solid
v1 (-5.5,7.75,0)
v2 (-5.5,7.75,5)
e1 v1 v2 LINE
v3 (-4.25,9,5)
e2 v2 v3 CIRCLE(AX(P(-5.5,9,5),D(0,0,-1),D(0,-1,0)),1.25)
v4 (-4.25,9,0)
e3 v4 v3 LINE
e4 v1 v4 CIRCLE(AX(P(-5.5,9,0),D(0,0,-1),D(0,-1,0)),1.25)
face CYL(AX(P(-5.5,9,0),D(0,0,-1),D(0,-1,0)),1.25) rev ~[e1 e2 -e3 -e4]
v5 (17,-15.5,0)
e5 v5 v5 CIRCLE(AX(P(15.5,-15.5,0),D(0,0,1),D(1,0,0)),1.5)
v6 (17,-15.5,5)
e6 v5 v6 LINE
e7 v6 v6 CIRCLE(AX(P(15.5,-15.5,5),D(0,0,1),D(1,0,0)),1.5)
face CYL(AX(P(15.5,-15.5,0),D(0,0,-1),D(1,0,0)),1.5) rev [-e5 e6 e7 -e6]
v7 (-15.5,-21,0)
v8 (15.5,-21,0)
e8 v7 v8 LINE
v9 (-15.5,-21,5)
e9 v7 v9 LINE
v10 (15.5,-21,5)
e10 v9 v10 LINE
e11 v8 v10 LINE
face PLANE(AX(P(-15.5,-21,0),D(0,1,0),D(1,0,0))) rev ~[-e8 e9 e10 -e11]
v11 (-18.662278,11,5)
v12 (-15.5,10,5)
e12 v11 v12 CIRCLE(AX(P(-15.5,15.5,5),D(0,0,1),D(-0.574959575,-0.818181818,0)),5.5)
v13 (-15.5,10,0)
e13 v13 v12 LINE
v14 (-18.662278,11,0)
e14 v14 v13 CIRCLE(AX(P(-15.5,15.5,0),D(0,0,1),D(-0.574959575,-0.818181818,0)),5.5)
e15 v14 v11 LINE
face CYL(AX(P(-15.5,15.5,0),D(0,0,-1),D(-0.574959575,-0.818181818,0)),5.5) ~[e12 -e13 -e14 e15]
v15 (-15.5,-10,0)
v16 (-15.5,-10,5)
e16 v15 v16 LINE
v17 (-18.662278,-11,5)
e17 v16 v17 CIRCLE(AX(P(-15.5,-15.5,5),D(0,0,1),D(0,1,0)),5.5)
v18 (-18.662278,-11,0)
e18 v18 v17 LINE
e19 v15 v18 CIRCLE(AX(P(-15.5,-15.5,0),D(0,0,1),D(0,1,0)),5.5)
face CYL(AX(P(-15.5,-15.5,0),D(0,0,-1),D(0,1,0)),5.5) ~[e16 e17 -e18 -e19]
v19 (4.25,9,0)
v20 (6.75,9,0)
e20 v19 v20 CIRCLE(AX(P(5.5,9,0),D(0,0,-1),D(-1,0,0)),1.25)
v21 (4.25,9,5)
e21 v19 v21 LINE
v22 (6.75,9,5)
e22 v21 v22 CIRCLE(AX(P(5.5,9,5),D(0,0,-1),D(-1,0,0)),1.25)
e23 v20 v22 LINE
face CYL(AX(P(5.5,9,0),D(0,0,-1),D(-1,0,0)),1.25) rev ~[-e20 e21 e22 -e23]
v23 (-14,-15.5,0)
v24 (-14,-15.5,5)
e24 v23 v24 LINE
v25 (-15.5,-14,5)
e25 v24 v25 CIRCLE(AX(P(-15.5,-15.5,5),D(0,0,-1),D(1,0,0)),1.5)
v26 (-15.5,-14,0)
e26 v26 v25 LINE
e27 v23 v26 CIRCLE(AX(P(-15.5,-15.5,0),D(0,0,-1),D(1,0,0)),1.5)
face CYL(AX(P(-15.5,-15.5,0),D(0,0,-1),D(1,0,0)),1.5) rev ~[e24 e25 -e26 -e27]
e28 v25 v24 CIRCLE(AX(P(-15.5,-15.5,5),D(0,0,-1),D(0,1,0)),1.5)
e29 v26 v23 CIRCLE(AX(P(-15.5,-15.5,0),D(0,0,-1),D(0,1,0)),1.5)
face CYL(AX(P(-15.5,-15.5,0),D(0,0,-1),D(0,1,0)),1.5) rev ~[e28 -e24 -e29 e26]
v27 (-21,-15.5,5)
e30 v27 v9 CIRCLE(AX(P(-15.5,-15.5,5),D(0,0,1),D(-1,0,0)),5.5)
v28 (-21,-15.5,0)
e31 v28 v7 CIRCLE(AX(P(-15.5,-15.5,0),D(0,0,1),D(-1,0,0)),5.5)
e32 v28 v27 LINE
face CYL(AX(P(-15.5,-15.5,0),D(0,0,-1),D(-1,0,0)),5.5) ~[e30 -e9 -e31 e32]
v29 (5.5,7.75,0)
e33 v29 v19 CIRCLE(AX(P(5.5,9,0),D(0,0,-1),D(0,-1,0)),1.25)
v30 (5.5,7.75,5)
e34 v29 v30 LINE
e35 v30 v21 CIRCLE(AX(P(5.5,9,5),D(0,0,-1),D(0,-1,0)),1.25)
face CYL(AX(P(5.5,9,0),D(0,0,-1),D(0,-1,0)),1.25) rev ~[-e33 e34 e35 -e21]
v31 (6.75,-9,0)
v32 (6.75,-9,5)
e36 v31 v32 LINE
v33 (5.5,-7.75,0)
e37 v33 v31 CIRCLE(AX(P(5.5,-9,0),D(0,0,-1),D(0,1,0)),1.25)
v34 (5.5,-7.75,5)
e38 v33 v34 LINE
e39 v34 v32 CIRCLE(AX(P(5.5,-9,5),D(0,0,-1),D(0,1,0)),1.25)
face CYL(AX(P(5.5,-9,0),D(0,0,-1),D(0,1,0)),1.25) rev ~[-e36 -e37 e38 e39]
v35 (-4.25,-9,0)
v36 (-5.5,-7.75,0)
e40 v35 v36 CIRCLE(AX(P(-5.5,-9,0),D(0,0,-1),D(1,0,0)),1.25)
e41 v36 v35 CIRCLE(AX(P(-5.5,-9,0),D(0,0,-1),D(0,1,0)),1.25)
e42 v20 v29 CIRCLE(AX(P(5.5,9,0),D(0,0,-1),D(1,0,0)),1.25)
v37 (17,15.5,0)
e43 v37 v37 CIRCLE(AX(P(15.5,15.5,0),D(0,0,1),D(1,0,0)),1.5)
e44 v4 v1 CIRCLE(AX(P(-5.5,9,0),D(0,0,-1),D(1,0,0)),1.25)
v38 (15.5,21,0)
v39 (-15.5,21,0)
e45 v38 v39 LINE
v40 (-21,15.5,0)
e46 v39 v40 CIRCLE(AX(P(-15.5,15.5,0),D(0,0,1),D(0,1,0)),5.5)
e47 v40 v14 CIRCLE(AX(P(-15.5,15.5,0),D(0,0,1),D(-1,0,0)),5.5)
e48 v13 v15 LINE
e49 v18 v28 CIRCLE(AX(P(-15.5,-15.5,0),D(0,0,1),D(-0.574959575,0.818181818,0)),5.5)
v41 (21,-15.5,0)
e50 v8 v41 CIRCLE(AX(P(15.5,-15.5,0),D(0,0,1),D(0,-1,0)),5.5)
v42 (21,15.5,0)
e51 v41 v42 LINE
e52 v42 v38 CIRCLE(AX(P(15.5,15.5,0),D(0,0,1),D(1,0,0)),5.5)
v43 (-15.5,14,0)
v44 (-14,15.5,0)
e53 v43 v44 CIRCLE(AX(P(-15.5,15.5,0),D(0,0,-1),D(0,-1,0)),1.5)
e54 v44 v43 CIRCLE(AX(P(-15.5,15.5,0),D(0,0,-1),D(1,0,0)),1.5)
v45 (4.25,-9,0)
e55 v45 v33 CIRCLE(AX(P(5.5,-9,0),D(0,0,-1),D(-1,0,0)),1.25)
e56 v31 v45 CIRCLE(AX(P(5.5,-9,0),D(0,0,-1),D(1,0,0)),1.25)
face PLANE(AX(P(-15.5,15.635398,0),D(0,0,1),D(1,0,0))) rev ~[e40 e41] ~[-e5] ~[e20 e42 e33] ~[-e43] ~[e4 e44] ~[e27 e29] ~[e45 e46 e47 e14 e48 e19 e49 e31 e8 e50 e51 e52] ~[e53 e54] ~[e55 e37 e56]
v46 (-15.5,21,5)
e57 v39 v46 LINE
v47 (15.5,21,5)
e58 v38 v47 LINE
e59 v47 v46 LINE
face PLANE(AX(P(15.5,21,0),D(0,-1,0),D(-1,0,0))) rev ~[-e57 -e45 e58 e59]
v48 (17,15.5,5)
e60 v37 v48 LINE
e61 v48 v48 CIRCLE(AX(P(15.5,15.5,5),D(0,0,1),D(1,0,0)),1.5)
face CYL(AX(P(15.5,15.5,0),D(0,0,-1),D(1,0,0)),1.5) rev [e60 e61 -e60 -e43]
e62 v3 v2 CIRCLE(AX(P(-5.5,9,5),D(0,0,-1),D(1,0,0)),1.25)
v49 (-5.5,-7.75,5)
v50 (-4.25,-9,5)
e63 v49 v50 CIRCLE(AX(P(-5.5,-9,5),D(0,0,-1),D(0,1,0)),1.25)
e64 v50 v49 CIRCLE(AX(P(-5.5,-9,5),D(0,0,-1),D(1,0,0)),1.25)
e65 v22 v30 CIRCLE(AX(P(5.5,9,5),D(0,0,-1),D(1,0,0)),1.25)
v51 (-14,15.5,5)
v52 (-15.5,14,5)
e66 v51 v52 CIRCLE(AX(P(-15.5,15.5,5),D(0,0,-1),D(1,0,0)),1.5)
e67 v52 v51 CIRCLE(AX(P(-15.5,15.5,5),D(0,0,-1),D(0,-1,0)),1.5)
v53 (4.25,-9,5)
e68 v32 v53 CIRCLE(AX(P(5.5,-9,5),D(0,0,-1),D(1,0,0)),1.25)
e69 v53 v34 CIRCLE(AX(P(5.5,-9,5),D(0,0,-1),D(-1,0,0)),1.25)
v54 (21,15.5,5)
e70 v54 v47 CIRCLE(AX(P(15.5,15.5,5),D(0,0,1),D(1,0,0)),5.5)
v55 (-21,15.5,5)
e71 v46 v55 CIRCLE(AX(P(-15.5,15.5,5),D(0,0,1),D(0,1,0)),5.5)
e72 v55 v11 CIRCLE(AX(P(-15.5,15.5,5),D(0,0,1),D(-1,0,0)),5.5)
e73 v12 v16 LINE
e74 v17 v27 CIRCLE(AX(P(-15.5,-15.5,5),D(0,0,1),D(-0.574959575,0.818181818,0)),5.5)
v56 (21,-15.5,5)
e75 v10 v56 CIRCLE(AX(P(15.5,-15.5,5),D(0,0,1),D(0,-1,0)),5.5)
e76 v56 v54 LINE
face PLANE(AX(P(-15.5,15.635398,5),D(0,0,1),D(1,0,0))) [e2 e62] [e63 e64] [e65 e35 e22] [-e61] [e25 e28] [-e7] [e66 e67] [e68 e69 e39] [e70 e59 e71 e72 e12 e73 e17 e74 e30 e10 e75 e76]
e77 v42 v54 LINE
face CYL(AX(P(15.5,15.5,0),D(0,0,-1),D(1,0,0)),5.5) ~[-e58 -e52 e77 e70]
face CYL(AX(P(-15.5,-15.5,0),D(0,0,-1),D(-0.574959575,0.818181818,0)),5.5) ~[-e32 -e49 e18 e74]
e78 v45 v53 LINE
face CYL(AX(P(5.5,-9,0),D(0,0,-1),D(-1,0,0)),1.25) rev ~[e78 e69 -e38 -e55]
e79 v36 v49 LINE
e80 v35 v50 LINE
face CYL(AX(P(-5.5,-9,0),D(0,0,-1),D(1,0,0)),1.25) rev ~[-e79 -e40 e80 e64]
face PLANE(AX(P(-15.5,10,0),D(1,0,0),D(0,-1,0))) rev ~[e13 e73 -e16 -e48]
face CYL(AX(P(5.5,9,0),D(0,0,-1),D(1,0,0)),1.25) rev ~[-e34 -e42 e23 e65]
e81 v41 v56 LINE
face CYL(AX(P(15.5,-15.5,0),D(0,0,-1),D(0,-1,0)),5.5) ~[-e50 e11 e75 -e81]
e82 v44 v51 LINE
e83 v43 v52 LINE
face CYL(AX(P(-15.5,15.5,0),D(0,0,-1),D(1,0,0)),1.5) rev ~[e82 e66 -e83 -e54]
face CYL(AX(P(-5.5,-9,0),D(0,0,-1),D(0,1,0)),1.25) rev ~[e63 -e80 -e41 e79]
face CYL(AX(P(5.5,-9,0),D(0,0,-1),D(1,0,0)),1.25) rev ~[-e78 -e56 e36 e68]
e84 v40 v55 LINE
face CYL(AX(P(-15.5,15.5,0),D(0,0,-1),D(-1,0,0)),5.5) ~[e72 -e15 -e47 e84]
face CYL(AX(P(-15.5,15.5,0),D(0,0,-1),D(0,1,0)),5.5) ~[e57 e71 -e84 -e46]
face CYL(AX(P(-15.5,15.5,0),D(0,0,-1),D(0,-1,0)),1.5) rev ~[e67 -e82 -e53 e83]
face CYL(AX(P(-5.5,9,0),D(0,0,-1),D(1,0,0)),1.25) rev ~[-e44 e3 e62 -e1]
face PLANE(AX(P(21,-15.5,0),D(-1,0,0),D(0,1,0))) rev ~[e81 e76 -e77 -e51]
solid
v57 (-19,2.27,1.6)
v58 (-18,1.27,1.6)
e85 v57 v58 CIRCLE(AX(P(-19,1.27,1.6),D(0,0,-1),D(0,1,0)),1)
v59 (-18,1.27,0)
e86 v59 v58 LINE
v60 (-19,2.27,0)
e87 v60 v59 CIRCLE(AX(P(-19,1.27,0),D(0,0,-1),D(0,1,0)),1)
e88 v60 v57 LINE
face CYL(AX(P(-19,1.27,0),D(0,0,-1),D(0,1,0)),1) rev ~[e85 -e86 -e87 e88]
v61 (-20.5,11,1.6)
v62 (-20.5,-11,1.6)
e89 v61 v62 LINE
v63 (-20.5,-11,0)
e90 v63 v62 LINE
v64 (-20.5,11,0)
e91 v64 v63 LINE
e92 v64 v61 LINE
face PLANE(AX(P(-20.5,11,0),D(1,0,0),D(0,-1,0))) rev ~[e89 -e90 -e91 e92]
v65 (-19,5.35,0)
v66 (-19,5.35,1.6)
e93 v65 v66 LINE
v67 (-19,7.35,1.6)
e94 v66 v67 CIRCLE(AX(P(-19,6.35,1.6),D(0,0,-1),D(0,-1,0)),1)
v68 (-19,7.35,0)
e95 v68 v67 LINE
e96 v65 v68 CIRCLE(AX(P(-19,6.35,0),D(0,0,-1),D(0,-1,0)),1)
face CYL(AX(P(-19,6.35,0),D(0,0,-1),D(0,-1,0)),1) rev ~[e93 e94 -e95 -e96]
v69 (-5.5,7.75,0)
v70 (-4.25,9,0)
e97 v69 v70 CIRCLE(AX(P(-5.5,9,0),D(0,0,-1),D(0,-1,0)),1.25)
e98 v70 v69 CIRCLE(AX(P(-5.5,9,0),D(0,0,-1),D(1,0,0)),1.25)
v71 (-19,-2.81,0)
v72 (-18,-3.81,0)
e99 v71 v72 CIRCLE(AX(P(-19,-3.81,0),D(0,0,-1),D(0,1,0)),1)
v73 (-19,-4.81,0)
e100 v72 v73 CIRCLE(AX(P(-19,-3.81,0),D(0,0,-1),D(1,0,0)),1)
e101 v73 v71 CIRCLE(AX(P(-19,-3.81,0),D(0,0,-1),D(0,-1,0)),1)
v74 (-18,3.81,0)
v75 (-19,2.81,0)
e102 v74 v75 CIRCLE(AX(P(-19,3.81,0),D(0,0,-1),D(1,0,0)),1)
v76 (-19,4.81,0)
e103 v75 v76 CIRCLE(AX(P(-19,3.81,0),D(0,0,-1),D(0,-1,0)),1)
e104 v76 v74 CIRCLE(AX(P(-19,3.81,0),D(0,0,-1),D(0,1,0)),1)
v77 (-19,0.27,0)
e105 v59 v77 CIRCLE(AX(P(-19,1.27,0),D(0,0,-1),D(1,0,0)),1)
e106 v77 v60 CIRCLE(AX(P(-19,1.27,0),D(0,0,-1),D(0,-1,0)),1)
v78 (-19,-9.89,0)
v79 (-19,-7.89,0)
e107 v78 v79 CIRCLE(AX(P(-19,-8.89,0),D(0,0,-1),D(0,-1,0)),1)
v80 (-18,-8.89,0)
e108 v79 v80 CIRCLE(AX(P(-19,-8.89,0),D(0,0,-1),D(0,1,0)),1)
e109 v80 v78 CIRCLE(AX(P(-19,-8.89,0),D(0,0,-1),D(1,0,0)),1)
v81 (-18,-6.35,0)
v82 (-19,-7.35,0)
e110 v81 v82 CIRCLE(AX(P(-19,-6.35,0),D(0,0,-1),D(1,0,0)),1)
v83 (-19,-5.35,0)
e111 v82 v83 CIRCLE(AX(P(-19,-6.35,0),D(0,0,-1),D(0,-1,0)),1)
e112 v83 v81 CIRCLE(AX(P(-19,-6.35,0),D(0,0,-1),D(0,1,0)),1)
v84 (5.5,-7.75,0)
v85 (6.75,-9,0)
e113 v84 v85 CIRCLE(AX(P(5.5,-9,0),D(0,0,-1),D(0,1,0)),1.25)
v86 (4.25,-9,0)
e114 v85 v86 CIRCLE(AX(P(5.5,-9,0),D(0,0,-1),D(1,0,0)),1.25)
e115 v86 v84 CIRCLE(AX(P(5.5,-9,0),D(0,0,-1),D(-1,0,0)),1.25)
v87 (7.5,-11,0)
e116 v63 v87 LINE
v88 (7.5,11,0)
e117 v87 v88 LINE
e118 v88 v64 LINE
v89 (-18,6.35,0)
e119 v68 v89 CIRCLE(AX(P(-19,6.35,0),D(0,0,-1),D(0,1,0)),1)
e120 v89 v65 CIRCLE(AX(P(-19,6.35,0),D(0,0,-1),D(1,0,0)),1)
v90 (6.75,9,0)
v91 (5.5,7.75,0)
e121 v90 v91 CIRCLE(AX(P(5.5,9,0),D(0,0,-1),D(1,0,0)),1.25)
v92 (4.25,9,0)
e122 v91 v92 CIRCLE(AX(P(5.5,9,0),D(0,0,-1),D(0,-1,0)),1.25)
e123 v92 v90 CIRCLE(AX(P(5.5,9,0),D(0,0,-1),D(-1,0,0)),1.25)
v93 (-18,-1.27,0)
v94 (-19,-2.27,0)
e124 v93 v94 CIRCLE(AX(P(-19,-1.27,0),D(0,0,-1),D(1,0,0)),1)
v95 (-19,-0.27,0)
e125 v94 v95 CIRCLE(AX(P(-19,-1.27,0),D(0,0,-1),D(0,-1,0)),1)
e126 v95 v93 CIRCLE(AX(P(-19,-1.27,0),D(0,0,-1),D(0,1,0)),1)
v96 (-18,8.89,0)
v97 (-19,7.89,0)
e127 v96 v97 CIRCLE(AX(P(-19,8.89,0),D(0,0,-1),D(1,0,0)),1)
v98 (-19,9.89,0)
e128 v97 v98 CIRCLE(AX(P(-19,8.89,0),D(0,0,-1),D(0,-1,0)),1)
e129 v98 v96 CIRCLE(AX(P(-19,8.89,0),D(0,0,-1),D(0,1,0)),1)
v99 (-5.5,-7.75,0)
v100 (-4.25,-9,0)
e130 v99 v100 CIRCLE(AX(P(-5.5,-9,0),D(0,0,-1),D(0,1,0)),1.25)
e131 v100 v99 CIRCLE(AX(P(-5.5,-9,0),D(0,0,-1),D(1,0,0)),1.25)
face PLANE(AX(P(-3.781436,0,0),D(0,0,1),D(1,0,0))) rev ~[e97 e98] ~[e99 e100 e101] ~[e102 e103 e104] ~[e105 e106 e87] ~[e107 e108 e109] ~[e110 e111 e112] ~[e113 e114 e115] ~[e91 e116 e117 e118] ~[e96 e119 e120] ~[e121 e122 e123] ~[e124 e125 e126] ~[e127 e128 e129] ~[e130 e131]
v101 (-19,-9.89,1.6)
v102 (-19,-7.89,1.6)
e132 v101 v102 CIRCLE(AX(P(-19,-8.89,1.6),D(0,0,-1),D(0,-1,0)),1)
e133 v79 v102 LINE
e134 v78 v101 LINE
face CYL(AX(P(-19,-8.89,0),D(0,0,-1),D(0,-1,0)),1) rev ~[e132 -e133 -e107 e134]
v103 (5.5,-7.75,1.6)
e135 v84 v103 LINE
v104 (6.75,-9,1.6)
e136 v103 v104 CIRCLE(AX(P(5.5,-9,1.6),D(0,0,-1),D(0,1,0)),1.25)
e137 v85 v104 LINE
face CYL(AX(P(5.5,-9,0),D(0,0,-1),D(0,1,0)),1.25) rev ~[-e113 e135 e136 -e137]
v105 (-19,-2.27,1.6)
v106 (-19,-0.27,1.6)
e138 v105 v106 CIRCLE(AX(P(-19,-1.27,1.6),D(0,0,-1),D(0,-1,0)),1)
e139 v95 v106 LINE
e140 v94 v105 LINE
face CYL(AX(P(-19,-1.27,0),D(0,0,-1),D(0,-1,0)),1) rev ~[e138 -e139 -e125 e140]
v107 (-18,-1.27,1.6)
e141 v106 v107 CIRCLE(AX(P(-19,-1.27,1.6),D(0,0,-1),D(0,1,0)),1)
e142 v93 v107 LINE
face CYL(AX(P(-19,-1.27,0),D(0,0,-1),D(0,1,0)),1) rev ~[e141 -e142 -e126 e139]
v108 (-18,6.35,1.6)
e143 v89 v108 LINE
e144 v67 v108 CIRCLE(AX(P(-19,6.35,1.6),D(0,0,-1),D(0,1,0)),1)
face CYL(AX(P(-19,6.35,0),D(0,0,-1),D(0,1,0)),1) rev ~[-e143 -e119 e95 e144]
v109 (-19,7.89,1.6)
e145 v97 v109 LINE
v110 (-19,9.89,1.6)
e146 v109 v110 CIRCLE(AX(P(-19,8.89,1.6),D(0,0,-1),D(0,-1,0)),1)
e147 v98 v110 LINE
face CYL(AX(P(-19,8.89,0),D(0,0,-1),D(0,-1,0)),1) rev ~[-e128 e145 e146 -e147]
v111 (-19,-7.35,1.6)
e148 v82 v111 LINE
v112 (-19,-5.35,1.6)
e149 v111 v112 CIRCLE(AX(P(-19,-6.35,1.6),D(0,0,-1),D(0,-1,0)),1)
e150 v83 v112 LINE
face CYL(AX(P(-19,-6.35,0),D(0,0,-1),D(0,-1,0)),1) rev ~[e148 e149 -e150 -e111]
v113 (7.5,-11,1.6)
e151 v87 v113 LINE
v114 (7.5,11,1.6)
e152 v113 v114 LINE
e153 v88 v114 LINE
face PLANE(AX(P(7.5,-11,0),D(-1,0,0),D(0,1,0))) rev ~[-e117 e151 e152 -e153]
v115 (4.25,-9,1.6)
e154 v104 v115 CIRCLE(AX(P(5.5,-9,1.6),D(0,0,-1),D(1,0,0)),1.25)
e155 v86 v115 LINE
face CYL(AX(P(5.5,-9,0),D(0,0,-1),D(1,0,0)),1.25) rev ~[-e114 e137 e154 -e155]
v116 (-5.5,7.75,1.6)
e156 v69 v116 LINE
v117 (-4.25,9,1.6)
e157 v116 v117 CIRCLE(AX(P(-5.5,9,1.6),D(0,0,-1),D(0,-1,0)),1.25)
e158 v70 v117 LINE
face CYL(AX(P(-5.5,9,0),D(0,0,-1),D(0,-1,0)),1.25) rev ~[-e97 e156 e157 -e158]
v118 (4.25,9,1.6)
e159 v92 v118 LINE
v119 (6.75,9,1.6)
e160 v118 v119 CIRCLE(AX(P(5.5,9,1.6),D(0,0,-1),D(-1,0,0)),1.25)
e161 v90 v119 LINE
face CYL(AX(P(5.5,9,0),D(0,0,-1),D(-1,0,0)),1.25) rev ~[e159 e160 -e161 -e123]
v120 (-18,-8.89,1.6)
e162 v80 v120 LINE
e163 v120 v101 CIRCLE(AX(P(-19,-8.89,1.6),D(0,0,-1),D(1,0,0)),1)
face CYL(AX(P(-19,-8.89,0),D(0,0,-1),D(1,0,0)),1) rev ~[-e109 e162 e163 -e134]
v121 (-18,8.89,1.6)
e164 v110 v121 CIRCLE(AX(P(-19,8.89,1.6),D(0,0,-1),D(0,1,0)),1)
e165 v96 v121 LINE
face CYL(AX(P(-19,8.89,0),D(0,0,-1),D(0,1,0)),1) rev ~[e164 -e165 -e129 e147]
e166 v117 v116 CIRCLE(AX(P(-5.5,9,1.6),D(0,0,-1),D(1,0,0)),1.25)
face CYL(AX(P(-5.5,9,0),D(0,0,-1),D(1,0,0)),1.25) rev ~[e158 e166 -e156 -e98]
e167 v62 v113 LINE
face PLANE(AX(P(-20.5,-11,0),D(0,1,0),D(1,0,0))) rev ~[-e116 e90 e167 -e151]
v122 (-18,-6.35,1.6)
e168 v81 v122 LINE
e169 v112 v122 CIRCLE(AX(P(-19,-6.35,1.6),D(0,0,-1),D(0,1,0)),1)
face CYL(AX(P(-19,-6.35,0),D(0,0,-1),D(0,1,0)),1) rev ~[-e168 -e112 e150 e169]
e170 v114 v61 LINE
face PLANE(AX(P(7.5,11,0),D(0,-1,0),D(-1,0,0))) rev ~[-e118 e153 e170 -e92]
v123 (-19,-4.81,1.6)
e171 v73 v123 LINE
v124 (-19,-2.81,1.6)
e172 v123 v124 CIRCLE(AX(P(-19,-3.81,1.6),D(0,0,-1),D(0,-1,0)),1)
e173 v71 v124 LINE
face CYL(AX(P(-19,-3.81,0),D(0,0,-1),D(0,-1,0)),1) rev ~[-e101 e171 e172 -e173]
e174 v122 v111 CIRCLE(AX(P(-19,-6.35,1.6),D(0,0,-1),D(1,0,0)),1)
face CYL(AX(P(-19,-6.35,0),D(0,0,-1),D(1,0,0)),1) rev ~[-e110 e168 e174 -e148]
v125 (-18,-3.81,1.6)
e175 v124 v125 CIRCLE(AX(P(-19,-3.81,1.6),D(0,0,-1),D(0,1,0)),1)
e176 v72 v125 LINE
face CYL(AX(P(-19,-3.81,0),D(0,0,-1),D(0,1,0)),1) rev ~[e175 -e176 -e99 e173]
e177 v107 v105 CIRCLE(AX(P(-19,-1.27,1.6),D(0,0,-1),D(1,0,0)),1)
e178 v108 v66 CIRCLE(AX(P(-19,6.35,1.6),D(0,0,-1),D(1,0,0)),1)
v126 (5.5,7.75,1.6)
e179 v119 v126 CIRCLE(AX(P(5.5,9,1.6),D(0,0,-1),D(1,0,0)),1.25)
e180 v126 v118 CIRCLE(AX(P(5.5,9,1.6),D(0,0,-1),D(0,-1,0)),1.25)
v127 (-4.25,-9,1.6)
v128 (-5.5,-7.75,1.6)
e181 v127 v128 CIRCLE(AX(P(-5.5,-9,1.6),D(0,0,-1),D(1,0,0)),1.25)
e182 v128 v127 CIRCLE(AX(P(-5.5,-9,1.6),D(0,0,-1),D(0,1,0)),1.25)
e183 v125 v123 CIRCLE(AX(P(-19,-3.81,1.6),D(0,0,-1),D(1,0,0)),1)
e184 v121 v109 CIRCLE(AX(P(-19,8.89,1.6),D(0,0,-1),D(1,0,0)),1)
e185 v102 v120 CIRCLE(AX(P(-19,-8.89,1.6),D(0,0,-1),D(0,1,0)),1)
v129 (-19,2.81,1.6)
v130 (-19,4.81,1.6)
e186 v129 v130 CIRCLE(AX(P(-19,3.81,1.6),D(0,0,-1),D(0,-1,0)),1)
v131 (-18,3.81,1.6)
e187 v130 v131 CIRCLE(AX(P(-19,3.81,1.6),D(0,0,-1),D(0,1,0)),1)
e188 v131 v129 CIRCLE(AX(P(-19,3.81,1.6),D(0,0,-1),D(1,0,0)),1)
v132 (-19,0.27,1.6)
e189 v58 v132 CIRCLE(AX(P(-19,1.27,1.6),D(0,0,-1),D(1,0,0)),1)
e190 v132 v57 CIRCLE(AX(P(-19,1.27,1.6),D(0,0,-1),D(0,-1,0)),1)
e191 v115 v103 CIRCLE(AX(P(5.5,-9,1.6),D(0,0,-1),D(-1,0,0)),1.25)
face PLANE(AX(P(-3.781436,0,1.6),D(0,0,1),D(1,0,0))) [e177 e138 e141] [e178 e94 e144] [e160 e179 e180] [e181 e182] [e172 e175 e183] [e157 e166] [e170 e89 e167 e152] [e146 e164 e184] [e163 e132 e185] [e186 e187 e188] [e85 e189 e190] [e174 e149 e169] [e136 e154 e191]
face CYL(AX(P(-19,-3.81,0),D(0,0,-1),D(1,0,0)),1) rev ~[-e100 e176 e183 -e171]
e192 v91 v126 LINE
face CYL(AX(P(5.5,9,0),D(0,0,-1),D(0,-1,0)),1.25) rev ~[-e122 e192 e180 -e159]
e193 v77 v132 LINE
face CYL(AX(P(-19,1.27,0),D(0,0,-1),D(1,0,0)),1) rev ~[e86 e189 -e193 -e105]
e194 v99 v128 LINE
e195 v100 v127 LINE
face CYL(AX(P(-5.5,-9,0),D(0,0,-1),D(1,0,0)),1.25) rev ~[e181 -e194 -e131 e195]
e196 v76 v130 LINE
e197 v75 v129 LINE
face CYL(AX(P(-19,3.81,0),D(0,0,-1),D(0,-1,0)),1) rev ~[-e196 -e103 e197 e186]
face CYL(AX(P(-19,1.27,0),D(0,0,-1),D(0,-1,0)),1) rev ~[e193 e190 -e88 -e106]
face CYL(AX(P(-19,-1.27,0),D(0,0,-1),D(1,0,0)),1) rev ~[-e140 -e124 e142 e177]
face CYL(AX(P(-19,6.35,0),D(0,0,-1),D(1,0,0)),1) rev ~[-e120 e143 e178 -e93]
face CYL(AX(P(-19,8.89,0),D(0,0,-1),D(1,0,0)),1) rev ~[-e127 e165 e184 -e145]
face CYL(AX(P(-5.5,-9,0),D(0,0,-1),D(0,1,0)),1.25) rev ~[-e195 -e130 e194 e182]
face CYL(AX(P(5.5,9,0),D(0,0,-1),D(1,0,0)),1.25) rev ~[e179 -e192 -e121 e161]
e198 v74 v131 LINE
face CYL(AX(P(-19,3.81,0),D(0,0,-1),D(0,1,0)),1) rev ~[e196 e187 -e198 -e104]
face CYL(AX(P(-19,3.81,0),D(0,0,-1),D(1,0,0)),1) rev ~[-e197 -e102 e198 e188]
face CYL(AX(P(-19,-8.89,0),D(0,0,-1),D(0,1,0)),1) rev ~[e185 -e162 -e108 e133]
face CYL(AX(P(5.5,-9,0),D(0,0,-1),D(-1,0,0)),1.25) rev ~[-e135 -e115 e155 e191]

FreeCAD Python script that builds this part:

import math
import FreeCAD as App
import Part
import Sketcher

V = App.Vector

doc = App.newDocument("Part")
body = doc.addObject("PartDesign::Body", "Body")

# Sketch on XY plane
sketch1 = doc.addObject("Sketcher::SketchObject", "Sketch")
body.addObject(sketch1)
sketch1.AttachmentSupport = (doc.XY_Plane, [""])
sketch1.MapMode = "FlatFace"
sketch1.addGeometry(Part.ArcOfCircle(Part.Circle(V(-15.5, 15.5, 0), V(0, 0, 1), 5.5), math.radians(90), math.radians(180)), False)
sketch1.addGeometry(Part.ArcOfCircle(Part.Circle(V(-15.5, 15.5, 0), V(0, 0, 1), 5.5), math.radians(180), math.radians(234.903199)), False)
sketch1.addGeometry(Part.ArcOfCircle(Part.Circle(V(-15.5, 15.5, 0), V(0, 0, 1), 5.5), math.radians(-125.096801), math.radians(-90)), False)
sketch1.addGeometry(Part.LineSegment(V(-15.5, 10, 0), V(-15.5, -10, 0)), False)
sketch1.addGeometry(Part.ArcOfCircle(Part.Circle(V(-15.5, -15.5, 0), V(0, 0, 1), 5.5), math.radians(90), math.radians(125.096801)), False)
sketch1.addGeometry(Part.ArcOfCircle(Part.Circle(V(-15.5, -15.5, 0), V(0, 0, 1), 5.5), math.radians(125.096801), math.radians(180)), False)
sketch1.addGeometry(Part.ArcOfCircle(Part.Circle(V(-15.5, -15.5, 0), V(0, 0, 1), 5.5), math.radians(180), math.radians(270)), False)
sketch1.addGeometry(Part.LineSegment(V(-15.5, -21, 0), V(15.5, -21, 0)), False)
sketch1.addGeometry(Part.ArcOfCircle(Part.Circle(V(15.5, -15.5, 0), V(0, 0, 1), 5.5), math.radians(-90), math.radians(0)), False)
sketch1.addGeometry(Part.LineSegment(V(21, -15.5, 0), V(21, 15.5, 0)), False)
sketch1.addGeometry(Part.ArcOfCircle(Part.Circle(V(15.5, 15.5, 0), V(0, 0, 1), 5.5), math.radians(0), math.radians(90)), False)
sketch1.addGeometry(Part.LineSegment(V(15.5, 21, 0), V(-15.5, 21, 0)), False)
sketch1.addGeometry(Part.ArcOfCircle(Part.Circle(V(-15.5, -15.5, 0), V(0, 0, 1), 1.5), math.radians(90), math.radians(360)), False)
sketch1.addGeometry(Part.ArcOfCircle(Part.Circle(V(-15.5, -15.5, 0), V(0, 0, 1), 1.5), math.radians(0), math.radians(90)), False)
sketch1.addGeometry(Part.Circle(V(15.5, -15.5, 0), V(0, 0, 1), 1.5), False)
sketch1.addGeometry(Part.ArcOfCircle(Part.Circle(V(-15.5, 15.5, 0), V(0, 0, 1), 1.5), math.radians(0), math.radians(270)), False)
sketch1.addGeometry(Part.ArcOfCircle(Part.Circle(V(-15.5, 15.5, 0), V(0, 0, 1), 1.5), math.radians(-90), math.radians(0)), False)
sketch1.addGeometry(Part.ArcOfCircle(Part.Circle(V(-5.5, 9, 0), V(0, 0, 1), 1.25), math.radians(0), math.radians(270)), False)
sketch1.addGeometry(Part.ArcOfCircle(Part.Circle(V(-5.5, 9, 0), V(0, 0, 1), 1.25), math.radians(-90), math.radians(0)), False)
sketch1.addGeometry(Part.ArcOfCircle(Part.Circle(V(5.5, 9, 0), V(0, 0, 1), 1.25), math.radians(0), math.radians(180)), False)
sketch1.addGeometry(Part.ArcOfCircle(Part.Circle(V(5.5, 9, 0), V(0, 0, 1), 1.25), math.radians(-90), math.radians(0)), False)
sketch1.addGeometry(Part.ArcOfCircle(Part.Circle(V(5.5, 9, 0), V(0, 0, 1), 1.25), math.radians(180), math.radians(270)), False)
sketch1.addGeometry(Part.ArcOfCircle(Part.Circle(V(5.5, -9, 0), V(0, 0, 1), 1.25), math.radians(0), math.radians(90)), False)
sketch1.addGeometry(Part.ArcOfCircle(Part.Circle(V(5.5, -9, 0), V(0, 0, 1), 1.25), math.radians(180), math.radians(360)), False)
sketch1.addGeometry(Part.ArcOfCircle(Part.Circle(V(5.5, -9, 0), V(0, 0, 1), 1.25), math.radians(90), math.radians(180)), False)
sketch1.addGeometry(Part.ArcOfCircle(Part.Circle(V(-5.5, -9, 0), V(0, 0, 1), 1.25), math.radians(90), math.radians(360)), False)
sketch1.addGeometry(Part.ArcOfCircle(Part.Circle(V(-5.5, -9, 0), V(0, 0, 1), 1.25), math.radians(0), math.radians(90)), False)
sketch1.addGeometry(Part.Circle(V(15.5, 15.5, 0), V(0, 0, 1), 1.5), False)
sketch1.addConstraint(Sketcher.Constraint("Tangent", 0, 2, 1, 1))
sketch1.addConstraint(Sketcher.Constraint("Tangent", 1, 2, 2, 1))
sketch1.addConstraint(Sketcher.Constraint("Coincident", 2, 2, 3, 1))
sketch1.addConstraint(Sketcher.Constraint("Coincident", 3, 2, 4, 1))
sketch1.addConstraint(Sketcher.Constraint("Tangent", 4, 2, 5, 1))
sketch1.addConstraint(Sketcher.Constraint("Tangent", 5, 2, 6, 1))
sketch1.addConstraint(Sketcher.Constraint("Tangent", 6, 2, 7, 1))
sketch1.addConstraint(Sketcher.Constraint("Tangent", 7, 2, 8, 1))
sketch1.addConstraint(Sketcher.Constraint("Tangent", 8, 2, 9, 1))
sketch1.addConstraint(Sketcher.Constraint("Tangent", 9, 2, 10, 1))
sketch1.addConstraint(Sketcher.Constraint("Tangent", 10, 2, 11, 1))
sketch1.addConstraint(Sketcher.Constraint("Tangent", 11, 2, 0, 1))
sketch1.addConstraint(Sketcher.Constraint("Tangent", 12, 1, 13, 2))
sketch1.addConstraint(Sketcher.Constraint("Coincident", 13, 1, 12, 2))
sketch1.addConstraint(Sketcher.Constraint("Tangent", 15, 1, 16, 2))
sketch1.addConstraint(Sketcher.Constraint("Coincident", 16, 1, 15, 2))
sketch1.addConstraint(Sketcher.Constraint("Tangent", 17, 1, 18, 2))
sketch1.addConstraint(Sketcher.Constraint("Coincident", 18, 1, 17, 2))
sketch1.addConstraint(Sketcher.Constraint("Tangent", 19, 1, 20, 2))
sketch1.addConstraint(Sketcher.Constraint("Tangent", 20, 1, 21, 2))
sketch1.addConstraint(Sketcher.Constraint("Tangent", 21, 1, 19, 2))
sketch1.addConstraint(Sketcher.Constraint("Tangent", 22, 1, 23, 2))
sketch1.addConstraint(Sketcher.Constraint("Tangent", 23, 1, 24, 2))
sketch1.addConstraint(Sketcher.Constraint("Tangent", 24, 1, 22, 2))
sketch1.addConstraint(Sketcher.Constraint("Tangent", 25, 1, 26, 2))
sketch1.addConstraint(Sketcher.Constraint("Coincident", 26, 1, 25, 2))
sketch1.addConstraint(Sketcher.Constraint("Vertical", 3))
sketch1.addConstraint(Sketcher.Constraint("Horizontal", 7))
sketch1.addConstraint(Sketcher.Constraint("Vertical", 9))
sketch1.addConstraint(Sketcher.Constraint("Horizontal", 11))
sketch1.addConstraint(Sketcher.Constraint("Coincident", 2, 3, 0, 3))
sketch1.addConstraint(Sketcher.Constraint("Coincident", 6, 3, 4, 3))
sketch1.addConstraint(Sketcher.Constraint("Coincident", 12, 3, 4, 3))
sketch1.addConstraint(Sketcher.Constraint("Coincident", 14, 3, 8, 3))
sketch1.addConstraint(Sketcher.Constraint("Coincident", 15, 3, 0, 3))
sketch1.addConstraint(Sketcher.Constraint("Coincident", 27, 3, 10, 3))
sketch1.addConstraint(Sketcher.Constraint("Equal", 2, 4))
sketch1.addConstraint(Sketcher.Constraint("Equal", 6, 8))
sketch1.addConstraint(Sketcher.Constraint("Equal", 8, 10))
sketch1.addConstraint(Sketcher.Constraint("Equal", 13, 14))
sketch1.addConstraint(Sketcher.Constraint("Equal", 14, 15))
sketch1.addConstraint(Sketcher.Constraint("Equal", 18, 19))
sketch1.addConstraint(Sketcher.Constraint("Equal", 21, 22))
sketch1.addConstraint(Sketcher.Constraint("Equal", 24, 25))
sketch1.addConstraint(Sketcher.Constraint("Equal", 16, 27))
sketch1.addConstraint(Sketcher.Constraint("Symmetric", 0, 3, 8, 3, -1, 1))
sketch1.addConstraint(Sketcher.Constraint("Symmetric", 17, 3, 22, 3, -1, 1))
sketch1.addConstraint(Sketcher.Constraint("Symmetric", 19, 3, 25, 3, -1, 1))
sketch1.addConstraint(Sketcher.Constraint("Symmetric", 5, 2, 9, 2, -1, 1))
sketch1.addConstraint(Sketcher.Constraint("Symmetric", 17, 3, 19, 3, -2))
sketch1.addConstraint(Sketcher.Constraint("Horizontal", 27, 3, 0, 2))
sketch1.addConstraint(Sketcher.Constraint("Horizontal", 8, 2, 13, 1))
sketch1.addConstraint(Sketcher.Constraint("Horizontal", 9, 2, 15, 1))
sketch1.addConstraint(Sketcher.Constraint("Horizontal", 21, 3, 17, 1))
sketch1.addConstraint(Sketcher.Constraint("Horizontal", 17, 1, 19, 1))
sketch1.addConstraint(Sketcher.Constraint("Horizontal", 19, 1, 21, 1))
sketch1.addConstraint(Sketcher.Constraint("Horizontal", 26, 3, 22, 1))
sketch1.addConstraint(Sketcher.Constraint("Horizontal", 22, 1, 23, 1))
sketch1.addConstraint(Sketcher.Constraint("Horizontal", 23, 1, 26, 1))
sketch1.addConstraint(Sketcher.Constraint("Vertical", 16, 3, 2, 2))
sketch1.addConstraint(Sketcher.Constraint("Vertical", 1, 2, 4, 2))
sketch1.addConstraint(Sketcher.Constraint("Vertical", 11, 2, 12, 1))
sketch1.addConstraint(Sketcher.Constraint("Vertical", 12, 1, 16, 1))
sketch1.addConstraint(Sketcher.Constraint("Vertical", 26, 3, 18, 1))
sketch1.addConstraint(Sketcher.Constraint("Vertical", 24, 3, 20, 1))
sketch1.addConstraint(Sketcher.Constraint("Vertical", 20, 1, 24, 1))
sketch1.addConstraint(Sketcher.Constraint("Vertical", 18, 1, 25, 1))
sketch1.addConstraint(Sketcher.Constraint("Equal", 11, 9))
sketch1.addConstraint(Sketcher.Constraint("Diameter", 14, 3.0))
sketch1.addConstraint(Sketcher.Constraint("Radius", 0, 5.5))
sketch1.addConstraint(Sketcher.Constraint("DistanceX", 7, 1, 7, 2, 31.0))
sketch1.addConstraint(Sketcher.Constraint("Radius", 17, 1.25))
sketch1.addConstraint(Sketcher.Constraint("DistanceY", -1, 1, 17, 3, 9.0))
sketch1.addConstraint(Sketcher.Constraint("DistanceY", -1, 1, 1, 2, 11.0))
sketch1.addConstraint(Sketcher.Constraint("DistanceX", 2, 3, 17, 3, 10.0))
pad1 = doc.addObject("PartDesign::Pad", "Pad")
body.addObject(pad1)
pad1.Profile = sketch1
pad1.Length = 5
body2 = doc.addObject("PartDesign::Body", "Body001")

# Sketch on XY plane
sketch2 = doc.addObject("Sketcher::SketchObject", "Sketch001")
body2.addObject(sketch2)
sketch2.AttachmentSupport = (doc.getObject("XY_Plane001"), [""])
sketch2.MapMode = "FlatFace"
sketch2.addGeometry(Part.LineSegment(V(7.5, -11, 0), V(7.5, 11, 0)), False)
sketch2.addGeometry(Part.LineSegment(V(7.5, 11, 0), V(-20.5, 11, 0)), False)
sketch2.addGeometry(Part.LineSegment(V(-20.5, 11, 0), V(-20.5, -11, 0)), False)
sketch2.addGeometry(Part.LineSegment(V(-20.5, -11, 0), V(7.5, -11, 0)), False)
sketch2.addGeometry(Part.ArcOfCircle(Part.Circle(V(-19, 8.89, 0), V(0, 0, 1), 1), math.radians(0), math.radians(90)), False)
sketch2.addGeometry(Part.ArcOfCircle(Part.Circle(V(-19, 8.89, 0), V(0, 0, 1), 1), math.radians(-90), math.radians(0)), False)
sketch2.addGeometry(Part.ArcOfCircle(Part.Circle(V(-19, 8.89, 0), V(0, 0, 1), 1), math.radians(90), math.radians(270)), False)
sketch2.addGeometry(Part.ArcOfCircle(Part.Circle(V(-19, 6.35, 0), V(0, 0, 1), 1), math.radians(0), math.radians(90)), False)
sketch2.addGeometry(Part.ArcOfCircle(Part.Circle(V(-19, 6.35, 0), V(0, 0, 1), 1), math.radians(-90), math.radians(0)), False)
sketch2.addGeometry(Part.ArcOfCircle(Part.Circle(V(-19, 6.35, 0), V(0, 0, 1), 1), math.radians(90), math.radians(270)), False)
sketch2.addGeometry(Part.ArcOfCircle(Part.Circle(V(-19, 3.81, 0), V(0, 0, 1), 1), math.radians(0), math.radians(90)), False)
sketch2.addGeometry(Part.ArcOfCircle(Part.Circle(V(-19, 3.81, 0), V(0, 0, 1), 1), math.radians(-90), math.radians(0)), False)
sketch2.addGeometry(Part.ArcOfCircle(Part.Circle(V(-19, 3.81, 0), V(0, 0, 1), 1), math.radians(90), math.radians(270)), False)
sketch2.addGeometry(Part.ArcOfCircle(Part.Circle(V(-19, 1.27, 0), V(0, 0, 1), 1), math.radians(0), math.radians(90)), False)
sketch2.addGeometry(Part.ArcOfCircle(Part.Circle(V(-19, 1.27, 0), V(0, 0, 1), 1), math.radians(-90), math.radians(0)), False)
sketch2.addGeometry(Part.ArcOfCircle(Part.Circle(V(-19, 1.27, 0), V(0, 0, 1), 1), math.radians(90), math.radians(270)), False)
sketch2.addGeometry(Part.ArcOfCircle(Part.Circle(V(-19, -1.27, 0), V(0, 0, 1), 1), math.radians(0), math.radians(90)), False)
sketch2.addGeometry(Part.ArcOfCircle(Part.Circle(V(-19, -1.27, 0), V(0, 0, 1), 1), math.radians(-90), math.radians(0)), False)
sketch2.addGeometry(Part.ArcOfCircle(Part.Circle(V(-19, -1.27, 0), V(0, 0, 1), 1), math.radians(90), math.radians(270)), False)
sketch2.addGeometry(Part.ArcOfCircle(Part.Circle(V(-19, -3.81, 0), V(0, 0, 1), 1), math.radians(0), math.radians(90)), False)
sketch2.addGeometry(Part.ArcOfCircle(Part.Circle(V(-19, -3.81, 0), V(0, 0, 1), 1), math.radians(-90), math.radians(0)), False)
sketch2.addGeometry(Part.ArcOfCircle(Part.Circle(V(-19, -3.81, 0), V(0, 0, 1), 1), math.radians(90), math.radians(270)), False)
sketch2.addGeometry(Part.ArcOfCircle(Part.Circle(V(-19, -6.35, 0), V(0, 0, 1), 1), math.radians(0), math.radians(90)), False)
sketch2.addGeometry(Part.ArcOfCircle(Part.Circle(V(-19, -6.35, 0), V(0, 0, 1), 1), math.radians(-90), math.radians(0)), False)
sketch2.addGeometry(Part.ArcOfCircle(Part.Circle(V(-19, -6.35, 0), V(0, 0, 1), 1), math.radians(90), math.radians(270)), False)
sketch2.addGeometry(Part.ArcOfCircle(Part.Circle(V(-19, -8.89, 0), V(0, 0, 1), 1), math.radians(0), math.radians(90)), False)
sketch2.addGeometry(Part.ArcOfCircle(Part.Circle(V(-19, -8.89, 0), V(0, 0, 1), 1), math.radians(-90), math.radians(0)), False)
sketch2.addGeometry(Part.ArcOfCircle(Part.Circle(V(-19, -8.89, 0), V(0, 0, 1), 1), math.radians(90), math.radians(270)), False)
sketch2.addGeometry(Part.ArcOfCircle(Part.Circle(V(-5.5, -9, 0), V(0, 0, 1), 1.25), math.radians(90), math.radians(360)), False)
sketch2.addGeometry(Part.ArcOfCircle(Part.Circle(V(-5.5, -9, 0), V(0, 0, 1), 1.25), math.radians(0), math.radians(90)), False)
sketch2.addGeometry(Part.ArcOfCircle(Part.Circle(V(5.5, -9, 0), V(0, 0, 1), 1.25), math.radians(180), math.radians(360)), False)
sketch2.addGeometry(Part.ArcOfCircle(Part.Circle(V(5.5, -9, 0), V(0, 0, 1), 1.25), math.radians(90), math.radians(180)), False)
sketch2.addGeometry(Part.ArcOfCircle(Part.Circle(V(5.5, -9, 0), V(0, 0, 1), 1.25), math.radians(0), math.radians(90)), False)
sketch2.addGeometry(Part.ArcOfCircle(Part.Circle(V(5.5, 9, 0), V(0, 0, 1), 1.25), math.radians(-90), math.radians(0)), False)
sketch2.addGeometry(Part.ArcOfCircle(Part.Circle(V(5.5, 9, 0), V(0, 0, 1), 1.25), math.radians(180), math.radians(270)), False)
sketch2.addGeometry(Part.ArcOfCircle(Part.Circle(V(5.5, 9, 0), V(0, 0, 1), 1.25), math.radians(0), math.radians(180)), False)
sketch2.addGeometry(Part.ArcOfCircle(Part.Circle(V(-5.5, 9, 0), V(0, 0, 1), 1.25), math.radians(0), math.radians(270)), False)
sketch2.addGeometry(Part.ArcOfCircle(Part.Circle(V(-5.5, 9, 0), V(0, 0, 1), 1.25), math.radians(-90), math.radians(0)), False)
sketch2.addConstraint(Sketcher.Constraint("Coincident", 0, 2, 1, 1))
sketch2.addConstraint(Sketcher.Constraint("Coincident", 1, 2, 2, 1))
sketch2.addConstraint(Sketcher.Constraint("Coincident", 2, 2, 3, 1))
sketch2.addConstraint(Sketcher.Constraint("Coincident", 3, 2, 0, 1))
sketch2.addConstraint(Sketcher.Constraint("Tangent", 4, 1, 5, 2))
sketch2.addConstraint(Sketcher.Constraint("Tangent", 5, 1, 6, 2))
sketch2.addConstraint(Sketcher.Constraint("Tangent", 6, 1, 4, 2))
sketch2.addConstraint(Sketcher.Constraint("Tangent", 7, 1, 8, 2))
sketch2.addConstraint(Sketcher.Constraint("Tangent", 8, 1, 9, 2))
sketch2.addConstraint(Sketcher.Constraint("Tangent", 9, 1, 7, 2))
sketch2.addConstraint(Sketcher.Constraint("Tangent", 10, 1, 11, 2))
sketch2.addConstraint(Sketcher.Constraint("Tangent", 11, 1, 12, 2))
sketch2.addConstraint(Sketcher.Constraint("Tangent", 12, 1, 10, 2))
sketch2.addConstraint(Sketcher.Constraint("Tangent", 13, 1, 14, 2))
sketch2.addConstraint(Sketcher.Constraint("Tangent", 14, 1, 15, 2))
sketch2.addConstraint(Sketcher.Constraint("Tangent", 15, 1, 13, 2))
sketch2.addConstraint(Sketcher.Constraint("Tangent", 16, 1, 17, 2))
sketch2.addConstraint(Sketcher.Constraint("Tangent", 17, 1, 18, 2))
sketch2.addConstraint(Sketcher.Constraint("Tangent", 18, 1, 16, 2))
sketch2.addConstraint(Sketcher.Constraint("Tangent", 19, 1, 20, 2))
sketch2.addConstraint(Sketcher.Constraint("Tangent", 20, 1, 21, 2))
sketch2.addConstraint(Sketcher.Constraint("Tangent", 21, 1, 19, 2))
sketch2.addConstraint(Sketcher.Constraint("Tangent", 22, 1, 23, 2))
sketch2.addConstraint(Sketcher.Constraint("Tangent", 23, 1, 24, 2))
sketch2.addConstraint(Sketcher.Constraint("Tangent", 24, 1, 22, 2))
sketch2.addConstraint(Sketcher.Constraint("Tangent", 25, 1, 26, 2))
sketch2.addConstraint(Sketcher.Constraint("Tangent", 26, 1, 27, 2))
sketch2.addConstraint(Sketcher.Constraint("Tangent", 27, 1, 25, 2))
sketch2.addConstraint(Sketcher.Constraint("Tangent", 28, 1, 29, 2))
sketch2.addConstraint(Sketcher.Constraint("Coincident", 29, 1, 28, 2))
sketch2.addConstraint(Sketcher.Constraint("Tangent", 30, 1, 31, 2))
sketch2.addConstraint(Sketcher.Constraint("Tangent", 31, 1, 32, 2))
sketch2.addConstraint(Sketcher.Constraint("Tangent", 32, 1, 30, 2))
sketch2.addConstraint(Sketcher.Constraint("Tangent", 33, 1, 34, 2))
sketch2.addConstraint(Sketcher.Constraint("Tangent", 34, 1, 35, 2))
sketch2.addConstraint(Sketcher.Constraint("Tangent", 35, 1, 33, 2))
sketch2.addConstraint(Sketcher.Constraint("Tangent", 36, 1, 37, 2))
sketch2.addConstraint(Sketcher.Constraint("Coincident", 37, 1, 36, 2))
sketch2.addConstraint(Sketcher.Constraint("Vertical", 0))
sketch2.addConstraint(Sketcher.Constraint("Horizontal", 1))
sketch2.addConstraint(Sketcher.Constraint("Vertical", 2))
sketch2.addConstraint(Sketcher.Constraint("Horizontal", 3))
sketch2.addConstraint(Sketcher.Constraint("Equal", 6, 7))
sketch2.addConstraint(Sketcher.Constraint("Equal", 9, 10))
sketch2.addConstraint(Sketcher.Constraint("Equal", 12, 13))
sketch2.addConstraint(Sketcher.Constraint("Equal", 15, 16))
sketch2.addConstraint(Sketcher.Constraint("Equal", 18, 19))
sketch2.addConstraint(Sketcher.Constraint("Equal", 21, 22))
sketch2.addConstraint(Sketcher.Constraint("Equal", 24, 25))
sketch2.addConstraint(Sketcher.Constraint("Equal", 29, 30))
sketch2.addConstraint(Sketcher.Constraint("Equal", 32, 33))
sketch2.addConstraint(Sketcher.Constraint("Equal", 35, 36))
sketch2.addConstraint(Sketcher.Constraint("Symmetric", 28, 3, 33, 3, -1, 1))
sketch2.addConstraint(Sketcher.Constraint("Symmetric", 30, 3, 36, 3, -1, 1))
sketch2.addConstraint(Sketcher.Constraint("Symmetric", 28, 3, 30, 3, -2))
sketch2.addConstraint(Sketcher.Constraint("Symmetric", 13, 3, 16, 3, -1))
sketch2.addConstraint(Sketcher.Constraint("Symmetric", 10, 3, 19, 3, -1))
sketch2.addConstraint(Sketcher.Constraint("Symmetric", 7, 3, 22, 3, -1))
sketch2.addConstraint(Sketcher.Constraint("Symmetric", 4, 3, 25, 3, -1))
sketch2.addConstraint(Sketcher.Constraint("Horizontal", 6, 3, 4, 1))
sketch2.addConstraint(Sketcher.Constraint("Horizontal", 9, 3, 7, 1))
sketch2.addConstraint(Sketcher.Constraint("Horizontal", 12, 3, 10, 1))
sketch2.addConstraint(Sketcher.Constraint("Horizontal", 15, 3, 13, 1))
sketch2.addConstraint(Sketcher.Constraint("Horizontal", 18, 3, 16, 1))
sketch2.addConstraint(Sketcher.Constraint("Horizontal", 21, 3, 19, 1))
sketch2.addConstraint(Sketcher.Constraint("Horizontal", 24, 3, 22, 1))
sketch2.addConstraint(Sketcher.Constraint("Horizontal", 27, 3, 25, 1))
sketch2.addConstraint(Sketcher.Constraint("Horizontal", 32, 3, 29, 1))
sketch2.addConstraint(Sketcher.Constraint("Horizontal", 29, 1, 30, 1))
sketch2.addConstraint(Sketcher.Constraint("Horizontal", 30, 1, 32, 1))
sketch2.addConstraint(Sketcher.Constraint("Horizontal", 37, 3, 34, 1))
sketch2.addConstraint(Sketcher.Constraint("Horizontal", 34, 1, 35, 1))
sketch2.addConstraint(Sketcher.Constraint("Horizontal", 35, 1, 36, 1))
sketch2.addConstraint(Sketcher.Constraint("Vertical", 6, 3, 7, 3))
sketch2.addConstraint(Sketcher.Constraint("Vertical", 9, 3, 10, 3))
sketch2.addConstraint(Sketcher.Constraint("Vertical", 12, 3, 13, 3))
sketch2.addConstraint(Sketcher.Constraint("Vertical", 27, 3, 5, 1))
sketch2.addConstraint(Sketcher.Constraint("Vertical", 5, 1, 6, 1))
sketch2.addConstraint(Sketcher.Constraint("Vertical", 6, 1, 8, 1))
sketch2.addConstraint(Sketcher.Constraint("Vertical", 8, 1, 9, 1))
sketch2.addConstraint(Sketcher.Constraint("Vertical", 9, 1, 11, 1))
sketch2.addConstraint(Sketcher.Constraint("Vertical", 11, 1, 12, 1))
sketch2.addConstraint(Sketcher.Constraint("Vertical", 12, 1, 14, 1))
sketch2.addConstraint(Sketcher.Constraint("Vertical", 14, 1, 15, 1))
sketch2.addConstraint(Sketcher.Constraint("Vertical", 15, 1, 17, 1))
sketch2.addConstraint(Sketcher.Constraint("Vertical", 17, 1, 18, 1))
sketch2.addConstraint(Sketcher.Constraint("Vertical", 18, 1, 20, 1))
sketch2.addConstraint(Sketcher.Constraint("Vertical", 20, 1, 21, 1))
sketch2.addConstraint(Sketcher.Constraint("Vertical", 21, 1, 23, 1))
sketch2.addConstraint(Sketcher.Constraint("Vertical", 23, 1, 24, 1))
sketch2.addConstraint(Sketcher.Constraint("Vertical", 24, 1, 26, 1))
sketch2.addConstraint(Sketcher.Constraint("Vertical", 26, 1, 27, 1))
sketch2.addConstraint(Sketcher.Constraint("Vertical", 37, 3, 28, 1))
sketch2.addConstraint(Sketcher.Constraint("Vertical", 35, 3, 31, 1))
sketch2.addConstraint(Sketcher.Constraint("Vertical", 31, 1, 33, 1))
sketch2.addConstraint(Sketcher.Constraint("Vertical", 28, 1, 37, 1))
sketch2.addConstraint(Sketcher.Constraint("Radius", 4, 1.0))
sketch2.addConstraint(Sketcher.Constraint("DistanceX", 1, 2, 1, 1, 28.0))
sketch2.addConstraint(Sketcher.Constraint("DistanceY", 0, 1, 0, 2, 22.0))
sketch2.addConstraint(Sketcher.Constraint("Radius", 28, 1.25))
sketch2.addConstraint(Sketcher.Constraint("DistanceX", 4, 3, -1, 1, 19.0))
sketch2.addConstraint(Sketcher.Constraint("DistanceY", 28, 3, -1, 1, 9.0))
sketch2.addConstraint(Sketcher.Constraint("DistanceY", -1, 1, 0, 2, 11.0))
sketch2.addConstraint(Sketcher.Constraint("DistanceX", 28, 3, -1, 1, 5.5))
sketch2.addConstraint(Sketcher.Constraint("DistanceX", -1, 1, 0, 2, 7.5))
sketch2.addConstraint(Sketcher.Constraint("DistanceY", -1, 1, 4, 3, 8.89))
sketch2.addConstraint(Sketcher.Constraint("DistanceY", -1, 1, 7, 3, 6.35))
sketch2.addConstraint(Sketcher.Constraint("DistanceY", -1, 1, 10, 3, 3.81))
sketch2.addConstraint(Sketcher.Constraint("DistanceY", -1, 1, 13, 3, 1.27))
pad2 = doc.addObject("PartDesign::Pad", "Pad001")
body2.addObject(pad2)
pad2.Profile = sketch2
pad2.Length = 1.6

doc.recompute()
